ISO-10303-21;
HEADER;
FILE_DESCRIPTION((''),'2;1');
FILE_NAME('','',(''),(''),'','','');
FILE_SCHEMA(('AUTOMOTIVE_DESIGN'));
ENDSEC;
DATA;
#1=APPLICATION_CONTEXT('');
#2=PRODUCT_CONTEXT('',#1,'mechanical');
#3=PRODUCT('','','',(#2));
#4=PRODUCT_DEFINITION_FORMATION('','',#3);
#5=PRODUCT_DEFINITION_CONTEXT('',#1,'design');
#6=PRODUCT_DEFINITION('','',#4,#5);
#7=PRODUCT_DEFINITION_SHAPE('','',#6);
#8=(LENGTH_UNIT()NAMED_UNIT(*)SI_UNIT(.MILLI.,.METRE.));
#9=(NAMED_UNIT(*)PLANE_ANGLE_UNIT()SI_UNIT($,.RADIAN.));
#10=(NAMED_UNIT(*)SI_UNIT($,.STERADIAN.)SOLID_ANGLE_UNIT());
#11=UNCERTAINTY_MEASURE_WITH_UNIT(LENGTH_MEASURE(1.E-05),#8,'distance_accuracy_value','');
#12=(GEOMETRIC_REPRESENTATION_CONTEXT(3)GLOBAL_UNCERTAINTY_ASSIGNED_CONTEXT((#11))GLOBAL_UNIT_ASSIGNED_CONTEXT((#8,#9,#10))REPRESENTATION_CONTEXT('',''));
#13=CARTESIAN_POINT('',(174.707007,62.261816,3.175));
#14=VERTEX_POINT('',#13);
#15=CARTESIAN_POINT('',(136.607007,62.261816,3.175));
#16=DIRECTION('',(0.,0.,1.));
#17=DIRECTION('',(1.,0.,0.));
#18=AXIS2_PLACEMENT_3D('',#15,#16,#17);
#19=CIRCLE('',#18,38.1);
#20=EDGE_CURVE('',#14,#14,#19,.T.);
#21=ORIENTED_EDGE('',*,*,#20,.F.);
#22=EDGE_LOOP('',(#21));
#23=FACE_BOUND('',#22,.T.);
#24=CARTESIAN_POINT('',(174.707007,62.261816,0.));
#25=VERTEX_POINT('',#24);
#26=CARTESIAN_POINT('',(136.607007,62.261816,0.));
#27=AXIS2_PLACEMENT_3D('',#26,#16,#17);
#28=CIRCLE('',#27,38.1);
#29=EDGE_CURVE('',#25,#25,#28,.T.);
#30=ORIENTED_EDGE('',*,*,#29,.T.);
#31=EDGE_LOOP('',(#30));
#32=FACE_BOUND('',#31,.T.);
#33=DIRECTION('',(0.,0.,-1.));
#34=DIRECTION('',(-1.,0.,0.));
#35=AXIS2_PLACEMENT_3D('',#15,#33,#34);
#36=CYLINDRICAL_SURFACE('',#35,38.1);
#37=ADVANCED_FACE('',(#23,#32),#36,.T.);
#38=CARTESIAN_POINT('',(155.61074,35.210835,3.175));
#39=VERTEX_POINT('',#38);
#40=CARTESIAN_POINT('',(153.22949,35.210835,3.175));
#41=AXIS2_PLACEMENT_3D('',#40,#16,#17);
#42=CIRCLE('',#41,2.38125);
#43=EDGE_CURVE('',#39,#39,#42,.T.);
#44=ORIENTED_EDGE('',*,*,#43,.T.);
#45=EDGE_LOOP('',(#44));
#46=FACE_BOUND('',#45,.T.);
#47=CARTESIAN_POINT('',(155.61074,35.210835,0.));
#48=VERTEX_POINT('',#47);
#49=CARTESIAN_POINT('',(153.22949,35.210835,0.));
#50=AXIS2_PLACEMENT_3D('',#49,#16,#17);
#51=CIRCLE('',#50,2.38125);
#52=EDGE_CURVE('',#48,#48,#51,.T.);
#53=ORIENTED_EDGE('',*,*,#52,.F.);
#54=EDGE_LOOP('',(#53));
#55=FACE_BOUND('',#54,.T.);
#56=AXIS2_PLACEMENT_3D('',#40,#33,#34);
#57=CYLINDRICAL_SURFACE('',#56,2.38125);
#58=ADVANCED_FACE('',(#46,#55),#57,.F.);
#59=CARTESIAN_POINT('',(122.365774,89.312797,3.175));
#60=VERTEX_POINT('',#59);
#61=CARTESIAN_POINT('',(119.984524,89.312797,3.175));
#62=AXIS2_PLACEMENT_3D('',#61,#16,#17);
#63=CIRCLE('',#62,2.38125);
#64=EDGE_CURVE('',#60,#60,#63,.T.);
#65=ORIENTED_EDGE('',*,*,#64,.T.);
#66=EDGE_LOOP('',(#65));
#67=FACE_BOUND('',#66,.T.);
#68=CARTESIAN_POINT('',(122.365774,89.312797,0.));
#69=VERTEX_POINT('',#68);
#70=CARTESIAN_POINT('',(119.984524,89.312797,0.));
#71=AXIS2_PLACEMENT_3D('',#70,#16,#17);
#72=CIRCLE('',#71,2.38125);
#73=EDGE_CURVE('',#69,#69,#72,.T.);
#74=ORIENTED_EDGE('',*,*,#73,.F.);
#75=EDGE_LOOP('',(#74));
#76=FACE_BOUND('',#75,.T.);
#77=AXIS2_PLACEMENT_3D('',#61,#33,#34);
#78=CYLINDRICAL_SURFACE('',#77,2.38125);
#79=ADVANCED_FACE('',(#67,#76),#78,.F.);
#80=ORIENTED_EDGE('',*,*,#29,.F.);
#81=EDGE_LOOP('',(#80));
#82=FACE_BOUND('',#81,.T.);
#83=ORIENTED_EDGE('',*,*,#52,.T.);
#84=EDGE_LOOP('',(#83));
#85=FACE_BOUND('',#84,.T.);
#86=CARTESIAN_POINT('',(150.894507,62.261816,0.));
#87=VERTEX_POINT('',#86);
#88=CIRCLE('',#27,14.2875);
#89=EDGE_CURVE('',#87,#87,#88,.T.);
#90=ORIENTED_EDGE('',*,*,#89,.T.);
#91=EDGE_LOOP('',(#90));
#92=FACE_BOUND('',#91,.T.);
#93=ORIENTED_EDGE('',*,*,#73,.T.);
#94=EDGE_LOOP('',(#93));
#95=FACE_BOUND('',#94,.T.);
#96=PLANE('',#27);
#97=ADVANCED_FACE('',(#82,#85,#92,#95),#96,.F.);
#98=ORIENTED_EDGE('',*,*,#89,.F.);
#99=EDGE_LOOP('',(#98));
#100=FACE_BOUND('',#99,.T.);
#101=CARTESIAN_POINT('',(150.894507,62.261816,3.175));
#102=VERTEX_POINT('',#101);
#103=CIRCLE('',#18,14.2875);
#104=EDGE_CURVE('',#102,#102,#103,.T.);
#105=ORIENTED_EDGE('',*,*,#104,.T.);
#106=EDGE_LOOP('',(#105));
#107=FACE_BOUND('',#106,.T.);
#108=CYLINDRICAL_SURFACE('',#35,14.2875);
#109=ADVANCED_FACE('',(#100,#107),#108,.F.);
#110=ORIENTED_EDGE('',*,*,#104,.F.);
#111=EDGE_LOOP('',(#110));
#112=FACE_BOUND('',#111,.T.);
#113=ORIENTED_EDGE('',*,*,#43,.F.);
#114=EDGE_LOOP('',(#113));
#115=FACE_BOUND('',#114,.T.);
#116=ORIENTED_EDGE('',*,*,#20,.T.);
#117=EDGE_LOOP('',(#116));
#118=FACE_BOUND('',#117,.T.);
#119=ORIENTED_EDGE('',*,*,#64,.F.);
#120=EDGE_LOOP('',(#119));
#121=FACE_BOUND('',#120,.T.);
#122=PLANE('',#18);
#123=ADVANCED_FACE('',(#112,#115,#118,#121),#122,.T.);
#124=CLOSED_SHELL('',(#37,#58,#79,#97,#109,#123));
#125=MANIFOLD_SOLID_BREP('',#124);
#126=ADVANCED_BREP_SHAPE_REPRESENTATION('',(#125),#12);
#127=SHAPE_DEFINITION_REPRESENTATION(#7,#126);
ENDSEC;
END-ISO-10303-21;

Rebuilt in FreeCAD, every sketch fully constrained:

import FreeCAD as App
import Part
import Sketcher

V = App.Vector
Q = App.Units.Quantity

doc = App.newDocument("Part")
body = doc.addObject("PartDesign::Body", "Body")

sketch1 = body.newObject("Sketcher::SketchObject", "Sketch")
sketch1.AttachmentSupport = (doc.getObject("XY_Plane"), [""])
sketch1.MapMode = "FlatFace"
sketch1.addGeometry([
    Part.Circle(V(136.6, 62.3, 0), V(0, 0, 1), 38.1),
    Part.Circle(V(153.2, 35.2, 0), V(0, 0, 1), 2.4),
    Part.Circle(V(120, 89.3, 0), V(0, 0, 1), 2.4),
    Part.Circle(V(136.6, 62.3, 0), V(0, 0, 1), 14.3),
], False)
sketch1.addConstraint([
    Sketcher.Constraint("Coincident", 3, 3, 0, 3),
    Sketcher.Constraint("Equal", 1, 2),
    Sketcher.Constraint("Diameter", 0, Q("3 in")),
    Sketcher.Constraint("Diameter", 1, Q("0.1875 in")),
    Sketcher.Constraint("Diameter", 3, Q("1.125 in")),
    Sketcher.Constraint("DistanceX", -1, 1, 2, 3, Q("4.7238002 in")),
    Sketcher.Constraint("DistanceX", -1, 1, 1, 3, Q("153.22949 mm")),
    Sketcher.Constraint("DistanceY", 1, 3, 0, 3, Q("27.050981 mm")),
    Sketcher.Constraint("DistanceY", 0, 3, 2, 3, Q("27.050981 mm")),
    Sketcher.Constraint("DistanceX", -1, 1, 0, 3, Q("136.607007 mm")),
    Sketcher.Constraint("DistanceY", -1, 1, 0, 3, Q("62.261816 mm")),
])
pad1 = body.newObject("PartDesign::Pad", "Pad")
pad1.Profile = sketch1
pad1.Length = Q("0.125 in")

doc.recompute()
